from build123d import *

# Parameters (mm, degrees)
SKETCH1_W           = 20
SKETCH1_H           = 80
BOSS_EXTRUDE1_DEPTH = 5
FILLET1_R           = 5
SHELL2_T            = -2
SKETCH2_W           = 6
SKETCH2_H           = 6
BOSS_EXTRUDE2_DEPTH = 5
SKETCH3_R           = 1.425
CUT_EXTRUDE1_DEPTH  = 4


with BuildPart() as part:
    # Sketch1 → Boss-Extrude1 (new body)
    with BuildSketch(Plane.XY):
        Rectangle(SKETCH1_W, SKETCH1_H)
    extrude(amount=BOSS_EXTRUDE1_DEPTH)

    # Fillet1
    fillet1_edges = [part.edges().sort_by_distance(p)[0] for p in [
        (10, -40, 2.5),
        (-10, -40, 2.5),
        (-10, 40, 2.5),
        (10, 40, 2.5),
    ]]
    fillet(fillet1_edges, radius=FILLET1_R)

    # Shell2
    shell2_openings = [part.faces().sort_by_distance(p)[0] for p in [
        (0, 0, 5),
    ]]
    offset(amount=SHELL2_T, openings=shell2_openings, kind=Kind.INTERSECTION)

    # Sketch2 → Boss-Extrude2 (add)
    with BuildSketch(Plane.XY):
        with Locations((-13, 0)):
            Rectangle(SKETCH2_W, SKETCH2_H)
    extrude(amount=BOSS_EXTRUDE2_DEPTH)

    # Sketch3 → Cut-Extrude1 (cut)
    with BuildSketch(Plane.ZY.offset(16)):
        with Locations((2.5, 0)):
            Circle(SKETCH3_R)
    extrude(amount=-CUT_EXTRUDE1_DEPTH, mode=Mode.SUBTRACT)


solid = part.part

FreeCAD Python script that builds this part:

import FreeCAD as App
import Part
import Sketcher

V = App.Vector


def edges_at(feature, points):
    """Names of the edges that pass closest to the given points."""
    edges = feature.Shape.Edges
    near = lambda p: min(range(len(edges)), key=lambda i: edges[i].distToShape(Part.Vertex(*p))[0])
    return sorted({f"Edge{near(p) + 1}" for p in points})


def faces_at(feature, points):
    """Names of the faces that lie closest to the given points."""
    faces = feature.Shape.Faces
    near = lambda p: min(range(len(faces)), key=lambda i: faces[i].distToShape(Part.Vertex(*p))[0])
    return sorted({f"Face{near(p) + 1}" for p in points})


def add_polygon(sketch, points):
    """Adds a closed chain of lines whose ends are joined by coincident constraints."""
    first, n = sketch.GeometryCount, len(points)
    for a, b in zip(points, points[1:] + points[:1]):
        sketch.addGeometry(Part.LineSegment(App.Vector(*a, 0), App.Vector(*b, 0)), False)
    for i in range(n):
        sketch.addConstraint(Sketcher.Constraint("Coincident", first + i, 2, first + (i + 1) % n, 1))

doc = App.newDocument("Part")
body = doc.addObject("PartDesign::Body", "Body")

sketch1 = doc.addObject("Sketcher::SketchObject", "Sketch")
body.addObject(sketch1)
sketch1.AttachmentSupport = (doc.XY_Plane, [""])
sketch1.MapMode = "FlatFace"
add_polygon(sketch1, [(-10, 40), (-10, -40), (10, -40), (10, 40)])
sketch1.addConstraint([
    Sketcher.Constraint("Vertical", 0),
    Sketcher.Constraint("Horizontal", 1),
    Sketcher.Constraint("Vertical", 2),
    Sketcher.Constraint("Horizontal", 3),
    Sketcher.Constraint("Symmetric", 0, 2, 2, 2, -1, 1),
    Sketcher.Constraint("DistanceX", 1, 1, 1, 2, 20.0),
    Sketcher.Constraint("DistanceY", 0, 2, 0, 1, 80.0),
])
pad1 = doc.addObject("PartDesign::Pad", "Pad")
body.addObject(pad1)
pad1.Profile = sketch1
pad1.Length = 5
doc.recompute()

fillet = doc.addObject("PartDesign::Fillet", "Fillet")
body.addObject(fillet)
fillet.Base = (pad1, edges_at(pad1, [
    (10, -40, 2.5),
    (-10, -40, 2.5),
    (-10, 40, 2.5),
    (10, 40, 2.5),
]))
fillet.Radius = 5
doc.recompute()

thickness = doc.addObject("PartDesign::Thickness", "Thickness")
body.addObject(thickness)
thickness.Base = (fillet, faces_at(fillet, [(0, 0, 5)]))
thickness.Value = 2
thickness.Reversed = True
thickness.Join = "Intersection"

sketch2 = doc.addObject("Sketcher::SketchObject", "Sketch001")
body.addObject(sketch2)
sketch2.AttachmentSupport = (doc.XY_Plane, [""])
sketch2.MapMode = "FlatFace"
add_polygon(sketch2, [(-16, 3), (-16, -3), (-10, -3), (-10, 3)])
sketch2.addConstraint([
    Sketcher.Constraint("Vertical", 0),
    Sketcher.Constraint("Horizontal", 1),
    Sketcher.Constraint("Vertical", 2),
    Sketcher.Constraint("Horizontal", 3),
    Sketcher.Constraint("Equal", 3, 0),
    Sketcher.Constraint("DistanceX", 1, 1, 1, 2, 6.0),
    Sketcher.Constraint("DistanceX", 0, 2, -1, 1, 16.0),
    Sketcher.Constraint("DistanceY", 0, 2, -1, 1, 3.0),
])
pad2 = doc.addObject("PartDesign::Pad", "Pad001")
body.addObject(pad2)
pad2.Profile = sketch2
pad2.Length = 5

sketch3 = doc.addObject("Sketcher::SketchObject", "Sketch002")
body.addObject(sketch3)
sketch3.AttachmentSupport = (doc.YZ_Plane, [""])
sketch3.MapMode = "FlatFace"
sketch3.AttachmentOffset = App.Placement(V(0, 0, -16), App.Rotation())
sketch3.addGeometry(Part.Circle(V(0, 2.5, 0), V(0, 0, 1), 1.4), False)
sketch3.addConstraint([
    Sketcher.Constraint("PointOnObject", 0, 3, -2),
    Sketcher.Constraint("Diameter", 0, 2.85),
    Sketcher.Constraint("DistanceY", -1, 1, 0, 3, 2.5),
])
pocket1 = doc.addObject("PartDesign::Pocket", "Pocket")
body.addObject(pocket1)
pocket1.Profile = sketch3
pocket1.Length = 4
pocket1.Reversed = True

doc.recompute()
